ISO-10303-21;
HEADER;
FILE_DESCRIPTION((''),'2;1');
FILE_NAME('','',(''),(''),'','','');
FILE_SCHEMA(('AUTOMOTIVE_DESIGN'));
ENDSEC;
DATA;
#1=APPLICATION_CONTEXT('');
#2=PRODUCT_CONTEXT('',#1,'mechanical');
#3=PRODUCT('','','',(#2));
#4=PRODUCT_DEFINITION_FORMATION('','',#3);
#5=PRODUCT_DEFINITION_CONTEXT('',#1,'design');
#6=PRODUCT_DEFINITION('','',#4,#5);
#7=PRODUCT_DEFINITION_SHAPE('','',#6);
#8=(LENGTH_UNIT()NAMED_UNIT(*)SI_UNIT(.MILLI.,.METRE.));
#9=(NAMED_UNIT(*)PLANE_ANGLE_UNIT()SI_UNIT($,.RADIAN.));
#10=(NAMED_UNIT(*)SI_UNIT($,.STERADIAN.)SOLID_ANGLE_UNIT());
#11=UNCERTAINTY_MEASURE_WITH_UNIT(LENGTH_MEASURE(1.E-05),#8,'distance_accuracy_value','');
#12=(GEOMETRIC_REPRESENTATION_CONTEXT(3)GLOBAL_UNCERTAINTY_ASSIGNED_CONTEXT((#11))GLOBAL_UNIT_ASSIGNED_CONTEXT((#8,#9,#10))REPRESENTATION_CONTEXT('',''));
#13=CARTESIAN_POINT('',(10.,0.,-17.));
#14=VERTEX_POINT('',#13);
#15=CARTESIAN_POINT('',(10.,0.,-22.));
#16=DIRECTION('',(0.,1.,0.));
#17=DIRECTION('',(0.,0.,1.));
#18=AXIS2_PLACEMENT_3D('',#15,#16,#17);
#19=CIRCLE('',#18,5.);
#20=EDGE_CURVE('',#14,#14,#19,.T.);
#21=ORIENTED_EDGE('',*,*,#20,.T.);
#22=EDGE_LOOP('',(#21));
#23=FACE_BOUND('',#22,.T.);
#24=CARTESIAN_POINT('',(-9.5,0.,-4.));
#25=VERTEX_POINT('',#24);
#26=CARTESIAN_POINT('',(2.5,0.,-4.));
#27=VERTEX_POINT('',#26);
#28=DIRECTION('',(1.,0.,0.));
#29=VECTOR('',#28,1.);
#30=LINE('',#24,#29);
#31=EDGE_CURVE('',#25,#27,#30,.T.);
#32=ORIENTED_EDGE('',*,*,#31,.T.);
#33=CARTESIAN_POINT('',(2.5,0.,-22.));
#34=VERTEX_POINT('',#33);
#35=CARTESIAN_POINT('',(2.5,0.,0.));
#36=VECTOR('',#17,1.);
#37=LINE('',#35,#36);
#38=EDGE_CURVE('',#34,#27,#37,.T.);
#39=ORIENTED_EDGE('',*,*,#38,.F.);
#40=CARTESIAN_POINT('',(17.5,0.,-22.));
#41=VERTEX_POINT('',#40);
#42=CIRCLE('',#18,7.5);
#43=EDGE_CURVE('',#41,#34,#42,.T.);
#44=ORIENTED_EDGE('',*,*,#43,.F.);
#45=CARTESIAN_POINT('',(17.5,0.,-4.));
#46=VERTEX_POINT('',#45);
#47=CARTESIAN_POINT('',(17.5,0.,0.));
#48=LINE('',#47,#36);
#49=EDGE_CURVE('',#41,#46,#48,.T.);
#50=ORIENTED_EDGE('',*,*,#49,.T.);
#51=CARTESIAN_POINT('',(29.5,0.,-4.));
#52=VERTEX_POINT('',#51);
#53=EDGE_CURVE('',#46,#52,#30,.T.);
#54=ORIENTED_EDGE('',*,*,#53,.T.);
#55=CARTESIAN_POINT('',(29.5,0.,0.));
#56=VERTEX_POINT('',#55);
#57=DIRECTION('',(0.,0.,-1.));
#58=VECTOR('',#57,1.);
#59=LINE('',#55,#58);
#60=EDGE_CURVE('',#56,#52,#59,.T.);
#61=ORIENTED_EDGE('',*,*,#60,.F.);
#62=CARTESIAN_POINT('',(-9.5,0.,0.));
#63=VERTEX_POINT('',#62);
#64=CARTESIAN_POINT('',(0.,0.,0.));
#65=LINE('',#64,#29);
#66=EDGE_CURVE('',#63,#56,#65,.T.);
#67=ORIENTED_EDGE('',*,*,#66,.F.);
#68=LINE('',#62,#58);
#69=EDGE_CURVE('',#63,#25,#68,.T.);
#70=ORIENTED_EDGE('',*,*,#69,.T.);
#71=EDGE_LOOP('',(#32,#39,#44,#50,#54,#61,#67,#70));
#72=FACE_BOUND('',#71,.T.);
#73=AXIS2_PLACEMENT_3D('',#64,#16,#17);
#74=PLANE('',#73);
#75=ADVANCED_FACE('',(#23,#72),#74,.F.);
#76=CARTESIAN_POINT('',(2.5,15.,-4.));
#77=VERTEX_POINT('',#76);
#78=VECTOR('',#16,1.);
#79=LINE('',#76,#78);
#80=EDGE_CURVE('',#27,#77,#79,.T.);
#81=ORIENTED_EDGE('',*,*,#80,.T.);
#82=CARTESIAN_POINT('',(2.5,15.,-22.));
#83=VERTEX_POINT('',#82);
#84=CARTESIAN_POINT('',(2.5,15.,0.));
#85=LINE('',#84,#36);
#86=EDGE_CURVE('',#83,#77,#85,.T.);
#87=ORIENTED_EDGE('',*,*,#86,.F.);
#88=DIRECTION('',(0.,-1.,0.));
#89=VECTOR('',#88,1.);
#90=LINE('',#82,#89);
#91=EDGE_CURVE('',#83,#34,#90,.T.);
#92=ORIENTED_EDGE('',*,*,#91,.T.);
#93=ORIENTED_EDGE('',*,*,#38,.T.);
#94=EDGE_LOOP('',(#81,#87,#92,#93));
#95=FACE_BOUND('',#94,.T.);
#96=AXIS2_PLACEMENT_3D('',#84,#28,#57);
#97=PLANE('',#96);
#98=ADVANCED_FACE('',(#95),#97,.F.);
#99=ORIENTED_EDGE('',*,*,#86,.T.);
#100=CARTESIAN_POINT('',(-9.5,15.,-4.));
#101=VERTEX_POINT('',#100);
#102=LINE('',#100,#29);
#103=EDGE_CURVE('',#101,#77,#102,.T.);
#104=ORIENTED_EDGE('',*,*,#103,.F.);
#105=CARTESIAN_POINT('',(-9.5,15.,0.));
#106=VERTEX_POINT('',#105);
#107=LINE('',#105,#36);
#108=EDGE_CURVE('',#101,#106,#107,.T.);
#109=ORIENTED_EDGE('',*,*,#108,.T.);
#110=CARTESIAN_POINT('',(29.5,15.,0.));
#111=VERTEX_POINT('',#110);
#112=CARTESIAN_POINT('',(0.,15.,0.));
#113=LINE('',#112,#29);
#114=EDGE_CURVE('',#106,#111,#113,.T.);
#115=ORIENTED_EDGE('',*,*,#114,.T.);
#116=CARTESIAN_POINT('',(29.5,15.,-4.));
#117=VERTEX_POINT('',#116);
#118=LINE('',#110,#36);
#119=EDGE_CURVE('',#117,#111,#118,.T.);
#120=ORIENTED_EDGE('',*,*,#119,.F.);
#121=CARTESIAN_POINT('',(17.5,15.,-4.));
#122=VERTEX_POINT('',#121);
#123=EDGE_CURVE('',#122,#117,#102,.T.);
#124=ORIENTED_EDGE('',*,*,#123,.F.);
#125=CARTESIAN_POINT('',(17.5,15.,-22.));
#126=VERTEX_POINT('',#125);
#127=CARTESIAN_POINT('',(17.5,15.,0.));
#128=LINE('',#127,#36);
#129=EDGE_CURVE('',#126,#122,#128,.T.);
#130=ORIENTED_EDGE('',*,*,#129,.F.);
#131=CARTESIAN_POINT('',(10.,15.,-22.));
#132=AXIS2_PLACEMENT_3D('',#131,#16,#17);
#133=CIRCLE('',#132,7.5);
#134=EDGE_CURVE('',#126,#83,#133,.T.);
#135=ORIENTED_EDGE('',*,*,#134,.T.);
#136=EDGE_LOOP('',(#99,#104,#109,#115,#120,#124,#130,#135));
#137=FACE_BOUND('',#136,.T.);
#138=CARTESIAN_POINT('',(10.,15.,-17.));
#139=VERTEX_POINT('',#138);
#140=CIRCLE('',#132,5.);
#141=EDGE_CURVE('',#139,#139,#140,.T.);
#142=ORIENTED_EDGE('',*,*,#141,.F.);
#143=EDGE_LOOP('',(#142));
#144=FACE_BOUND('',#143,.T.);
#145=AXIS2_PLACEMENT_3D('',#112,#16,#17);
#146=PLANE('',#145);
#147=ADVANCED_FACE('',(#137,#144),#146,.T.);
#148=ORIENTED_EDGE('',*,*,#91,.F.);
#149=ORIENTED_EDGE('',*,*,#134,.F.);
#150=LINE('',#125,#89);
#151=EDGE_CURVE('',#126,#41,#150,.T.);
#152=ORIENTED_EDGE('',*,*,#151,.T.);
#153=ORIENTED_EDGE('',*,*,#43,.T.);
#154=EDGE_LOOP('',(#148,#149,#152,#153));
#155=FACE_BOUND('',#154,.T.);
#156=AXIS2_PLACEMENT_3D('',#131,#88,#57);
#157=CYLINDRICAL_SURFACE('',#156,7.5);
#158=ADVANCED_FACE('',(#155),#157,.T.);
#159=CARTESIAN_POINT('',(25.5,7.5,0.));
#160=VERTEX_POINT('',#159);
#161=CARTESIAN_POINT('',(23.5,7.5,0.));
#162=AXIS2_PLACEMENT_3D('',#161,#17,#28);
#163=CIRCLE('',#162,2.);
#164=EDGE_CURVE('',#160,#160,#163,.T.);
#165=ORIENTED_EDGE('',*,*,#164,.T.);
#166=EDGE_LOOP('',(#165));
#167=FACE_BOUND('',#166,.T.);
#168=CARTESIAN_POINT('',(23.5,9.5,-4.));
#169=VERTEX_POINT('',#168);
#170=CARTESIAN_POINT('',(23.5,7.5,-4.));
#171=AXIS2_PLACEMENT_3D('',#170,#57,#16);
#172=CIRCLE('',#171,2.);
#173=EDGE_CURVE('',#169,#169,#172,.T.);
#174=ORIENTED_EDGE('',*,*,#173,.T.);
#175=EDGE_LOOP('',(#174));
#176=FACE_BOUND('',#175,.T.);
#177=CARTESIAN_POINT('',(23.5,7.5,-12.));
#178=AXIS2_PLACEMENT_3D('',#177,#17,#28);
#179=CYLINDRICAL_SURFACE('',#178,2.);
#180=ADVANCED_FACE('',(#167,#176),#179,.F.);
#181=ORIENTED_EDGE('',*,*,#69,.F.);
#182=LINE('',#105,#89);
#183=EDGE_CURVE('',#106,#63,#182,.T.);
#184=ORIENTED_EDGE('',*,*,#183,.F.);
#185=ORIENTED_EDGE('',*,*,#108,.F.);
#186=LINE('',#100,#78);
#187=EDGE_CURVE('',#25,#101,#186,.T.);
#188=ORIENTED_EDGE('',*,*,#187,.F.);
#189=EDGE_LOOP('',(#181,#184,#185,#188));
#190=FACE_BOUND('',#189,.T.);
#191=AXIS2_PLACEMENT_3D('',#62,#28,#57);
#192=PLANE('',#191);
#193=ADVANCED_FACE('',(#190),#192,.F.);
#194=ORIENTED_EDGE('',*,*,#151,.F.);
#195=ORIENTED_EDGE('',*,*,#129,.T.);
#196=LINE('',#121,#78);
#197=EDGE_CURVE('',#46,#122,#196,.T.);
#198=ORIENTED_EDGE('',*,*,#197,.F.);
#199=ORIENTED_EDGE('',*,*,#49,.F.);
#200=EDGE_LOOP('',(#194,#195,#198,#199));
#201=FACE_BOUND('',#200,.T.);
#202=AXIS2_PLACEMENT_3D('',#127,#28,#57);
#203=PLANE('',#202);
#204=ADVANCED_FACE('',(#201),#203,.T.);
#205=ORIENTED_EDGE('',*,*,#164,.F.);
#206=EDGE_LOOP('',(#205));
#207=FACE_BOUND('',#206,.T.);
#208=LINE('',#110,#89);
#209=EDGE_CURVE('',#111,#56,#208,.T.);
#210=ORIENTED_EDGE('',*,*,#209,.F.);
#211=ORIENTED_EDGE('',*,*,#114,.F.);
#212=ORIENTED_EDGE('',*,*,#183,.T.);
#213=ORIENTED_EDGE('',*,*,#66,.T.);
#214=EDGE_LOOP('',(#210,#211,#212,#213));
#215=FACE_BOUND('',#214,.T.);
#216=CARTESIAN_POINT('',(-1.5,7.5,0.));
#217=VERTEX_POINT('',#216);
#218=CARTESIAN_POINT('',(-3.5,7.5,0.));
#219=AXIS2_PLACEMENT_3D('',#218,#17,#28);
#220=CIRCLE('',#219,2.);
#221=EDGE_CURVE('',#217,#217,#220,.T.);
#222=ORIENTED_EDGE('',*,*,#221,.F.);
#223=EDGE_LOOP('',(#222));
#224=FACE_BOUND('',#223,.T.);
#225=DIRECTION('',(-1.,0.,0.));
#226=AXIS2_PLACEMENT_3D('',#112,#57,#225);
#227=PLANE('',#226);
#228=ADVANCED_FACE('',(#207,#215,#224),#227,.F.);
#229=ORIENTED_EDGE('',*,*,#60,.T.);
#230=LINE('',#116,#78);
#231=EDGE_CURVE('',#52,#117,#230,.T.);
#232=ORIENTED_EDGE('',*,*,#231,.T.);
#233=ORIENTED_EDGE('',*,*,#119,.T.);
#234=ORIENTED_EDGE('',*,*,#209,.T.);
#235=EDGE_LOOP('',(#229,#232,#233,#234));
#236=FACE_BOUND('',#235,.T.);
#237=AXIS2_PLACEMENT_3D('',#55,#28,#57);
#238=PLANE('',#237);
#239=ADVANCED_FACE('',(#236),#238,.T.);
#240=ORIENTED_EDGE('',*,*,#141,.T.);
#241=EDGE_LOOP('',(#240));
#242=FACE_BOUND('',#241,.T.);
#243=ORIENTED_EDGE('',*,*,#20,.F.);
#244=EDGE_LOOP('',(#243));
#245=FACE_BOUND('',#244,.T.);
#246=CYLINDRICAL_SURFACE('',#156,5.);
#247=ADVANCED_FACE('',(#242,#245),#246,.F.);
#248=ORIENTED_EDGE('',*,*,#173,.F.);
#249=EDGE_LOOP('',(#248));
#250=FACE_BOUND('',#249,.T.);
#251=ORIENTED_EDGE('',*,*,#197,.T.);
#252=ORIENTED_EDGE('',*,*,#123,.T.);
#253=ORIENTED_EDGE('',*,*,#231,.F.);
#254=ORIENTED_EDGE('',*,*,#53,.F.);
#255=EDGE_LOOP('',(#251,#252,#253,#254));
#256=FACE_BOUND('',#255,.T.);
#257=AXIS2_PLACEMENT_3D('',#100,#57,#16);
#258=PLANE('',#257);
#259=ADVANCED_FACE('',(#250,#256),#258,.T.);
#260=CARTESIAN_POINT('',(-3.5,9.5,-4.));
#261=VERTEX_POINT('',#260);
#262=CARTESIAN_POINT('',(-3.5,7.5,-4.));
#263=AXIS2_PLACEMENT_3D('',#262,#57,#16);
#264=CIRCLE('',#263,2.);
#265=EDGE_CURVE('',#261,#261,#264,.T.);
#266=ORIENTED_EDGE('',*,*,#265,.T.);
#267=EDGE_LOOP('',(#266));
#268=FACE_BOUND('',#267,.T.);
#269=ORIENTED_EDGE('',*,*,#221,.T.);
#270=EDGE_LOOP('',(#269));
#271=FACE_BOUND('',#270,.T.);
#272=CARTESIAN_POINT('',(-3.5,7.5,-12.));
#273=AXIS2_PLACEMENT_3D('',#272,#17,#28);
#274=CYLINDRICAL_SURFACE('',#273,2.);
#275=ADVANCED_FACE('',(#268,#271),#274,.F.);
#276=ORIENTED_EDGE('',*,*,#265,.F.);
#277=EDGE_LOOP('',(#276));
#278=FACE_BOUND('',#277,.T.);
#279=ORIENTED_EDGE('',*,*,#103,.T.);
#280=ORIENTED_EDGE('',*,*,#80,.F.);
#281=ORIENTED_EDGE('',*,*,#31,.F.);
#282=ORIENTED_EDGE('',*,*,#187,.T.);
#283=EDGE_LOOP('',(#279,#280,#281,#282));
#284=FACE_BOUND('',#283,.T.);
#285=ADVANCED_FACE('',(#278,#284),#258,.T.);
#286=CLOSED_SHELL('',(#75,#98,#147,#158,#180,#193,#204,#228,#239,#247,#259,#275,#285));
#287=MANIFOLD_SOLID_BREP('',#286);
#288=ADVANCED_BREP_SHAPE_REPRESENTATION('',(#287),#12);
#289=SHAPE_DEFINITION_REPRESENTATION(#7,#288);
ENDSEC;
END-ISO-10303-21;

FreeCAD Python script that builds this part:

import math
import FreeCAD as App
import Part
import Sketcher


def add_polygon(sketch, points):
    """Adds a closed chain of lines whose ends are joined by coincident constraints."""
    first, n = sketch.GeometryCount, len(points)
    for a, b in zip(points, points[1:] + points[:1]):
        sketch.addGeometry(Part.LineSegment(App.Vector(*a, 0), App.Vector(*b, 0)), False)
    for i in range(n):
        sketch.addConstraint(Sketcher.Constraint("Coincident", first + i, 2, first + (i + 1) % n, 1))

doc = App.newDocument("Part")
body = doc.addObject("PartDesign::Body", "Body")

# Sketch on XZ plane
sketch1 = body.newObject("Sketcher::SketchObject", "Sketch")
sketch1.AttachmentSupport = (doc.getObject("XZ_Plane"), [""])
sketch1.MapMode = "FlatFace"
sketch1.addGeometry([
    Part.ArcOfCircle(Part.Circle(App.Vector(10, -22, 0), App.Vector(0, 0, 1), 8), math.radians(180), math.radians(360)),  # 0
    Part.LineSegment(App.Vector(2, -22, 0), App.Vector(2, 0, 0)),  # 1
    Part.LineSegment(App.Vector(2, 0, 0), App.Vector(18, 0, 0)),  # 2
    Part.LineSegment(App.Vector(18, 0, 0), App.Vector(18, -22, 0)),  # 3
    Part.Circle(App.Vector(10, -22, 0), App.Vector(0, 0, 1), 5),  # 4
], False)
sketch1.addConstraint([
    Sketcher.Constraint("Tangent", 0, 1, 1, 1),
    Sketcher.Constraint("Coincident", 1, 2, 2, 1),
    Sketcher.Constraint("Coincident", 2, 2, 3, 1),
    Sketcher.Constraint("Tangent", 3, 2, 0, 2),
    Sketcher.Constraint("Vertical", 1),
    Sketcher.Constraint("Horizontal", 2),
    Sketcher.Constraint("Vertical", 3),
    Sketcher.Constraint("Coincident", 4, 3, 0, 3),
    Sketcher.Constraint("PointOnObject", 1, 2, -1),
    Sketcher.Constraint("Diameter", 4, 10.0),
    Sketcher.Constraint("Radius", 0, 7.5),
    Sketcher.Constraint("DistanceY", 1, 1, 1, 2, 22.0),
    Sketcher.Constraint("DistanceX", -1, 1, 0, 3, 10.0),
])
pad1 = body.newObject("PartDesign::Pad", "Pad")
pad1.Profile = sketch1
pad1.Length = 15
pad1.Reversed = True

# Sketch on YZ plane
sketch2 = body.newObject("Sketcher::SketchObject", "Sketch001")
sketch2.AttachmentSupport = (doc.getObject("YZ_Plane"), [""])
sketch2.MapMode = "FlatFace"
sketch2.AttachmentOffset = App.Placement(App.Vector(0, 0, 17.5), App.Rotation())
add_polygon(sketch2, [(15, 0), (0, 0), (0, -4), (15, -4)])  # lines 0-3
sketch2.addConstraint([
    Sketcher.Constraint("Horizontal", 0),
    Sketcher.Constraint("Vertical", 1),
    Sketcher.Constraint("Horizontal", 2),
    Sketcher.Constraint("Vertical", 3),
    Sketcher.Constraint("Coincident", 0, 2, -1, 1),
    Sketcher.Constraint("DistanceX", 0, 2, 0, 1, 15.0),
    Sketcher.Constraint("DistanceY", 1, 2, 1, 1, 4.0),
])
pad2 = body.newObject("PartDesign::Pad", "Pad001")
pad2.Profile = sketch2
pad2.Type = "TwoLengths"
pad2.Length = 12
pad2.Length2 = 27

# Sketch on XY plane
sketch3 = body.newObject("Sketcher::SketchObject", "Sketch002")
sketch3.AttachmentSupport = (doc.getObject("XY_Plane"), [""])
sketch3.MapMode = "FlatFace"
sketch3.addGeometry([
    Part.Circle(App.Vector(-3.5, 7.5, 0), App.Vector(0, 0, 1), 2),
    Part.Circle(App.Vector(23.5, 7.5, 0), App.Vector(0, 0, 1), 2),
], False)
sketch3.addConstraint([
    Sketcher.Constraint("Equal", 0, 1),
    Sketcher.Constraint("Horizontal", 0, 3, 1, 3),
    Sketcher.Constraint("Diameter", 0, 4.0),
    Sketcher.Constraint("DistanceX", 0, 3, 1, 3, 27.0),
    Sketcher.Constraint("DistanceX", 0, 3, -1, 1, 3.5),
    Sketcher.Constraint("DistanceY", -1, 1, 0, 3, 7.5),
])
pocket1 = body.newObject("PartDesign::Pocket", "Pocket")
pocket1.Profile = sketch3
pocket1.Length = 12

doc.recompute()
